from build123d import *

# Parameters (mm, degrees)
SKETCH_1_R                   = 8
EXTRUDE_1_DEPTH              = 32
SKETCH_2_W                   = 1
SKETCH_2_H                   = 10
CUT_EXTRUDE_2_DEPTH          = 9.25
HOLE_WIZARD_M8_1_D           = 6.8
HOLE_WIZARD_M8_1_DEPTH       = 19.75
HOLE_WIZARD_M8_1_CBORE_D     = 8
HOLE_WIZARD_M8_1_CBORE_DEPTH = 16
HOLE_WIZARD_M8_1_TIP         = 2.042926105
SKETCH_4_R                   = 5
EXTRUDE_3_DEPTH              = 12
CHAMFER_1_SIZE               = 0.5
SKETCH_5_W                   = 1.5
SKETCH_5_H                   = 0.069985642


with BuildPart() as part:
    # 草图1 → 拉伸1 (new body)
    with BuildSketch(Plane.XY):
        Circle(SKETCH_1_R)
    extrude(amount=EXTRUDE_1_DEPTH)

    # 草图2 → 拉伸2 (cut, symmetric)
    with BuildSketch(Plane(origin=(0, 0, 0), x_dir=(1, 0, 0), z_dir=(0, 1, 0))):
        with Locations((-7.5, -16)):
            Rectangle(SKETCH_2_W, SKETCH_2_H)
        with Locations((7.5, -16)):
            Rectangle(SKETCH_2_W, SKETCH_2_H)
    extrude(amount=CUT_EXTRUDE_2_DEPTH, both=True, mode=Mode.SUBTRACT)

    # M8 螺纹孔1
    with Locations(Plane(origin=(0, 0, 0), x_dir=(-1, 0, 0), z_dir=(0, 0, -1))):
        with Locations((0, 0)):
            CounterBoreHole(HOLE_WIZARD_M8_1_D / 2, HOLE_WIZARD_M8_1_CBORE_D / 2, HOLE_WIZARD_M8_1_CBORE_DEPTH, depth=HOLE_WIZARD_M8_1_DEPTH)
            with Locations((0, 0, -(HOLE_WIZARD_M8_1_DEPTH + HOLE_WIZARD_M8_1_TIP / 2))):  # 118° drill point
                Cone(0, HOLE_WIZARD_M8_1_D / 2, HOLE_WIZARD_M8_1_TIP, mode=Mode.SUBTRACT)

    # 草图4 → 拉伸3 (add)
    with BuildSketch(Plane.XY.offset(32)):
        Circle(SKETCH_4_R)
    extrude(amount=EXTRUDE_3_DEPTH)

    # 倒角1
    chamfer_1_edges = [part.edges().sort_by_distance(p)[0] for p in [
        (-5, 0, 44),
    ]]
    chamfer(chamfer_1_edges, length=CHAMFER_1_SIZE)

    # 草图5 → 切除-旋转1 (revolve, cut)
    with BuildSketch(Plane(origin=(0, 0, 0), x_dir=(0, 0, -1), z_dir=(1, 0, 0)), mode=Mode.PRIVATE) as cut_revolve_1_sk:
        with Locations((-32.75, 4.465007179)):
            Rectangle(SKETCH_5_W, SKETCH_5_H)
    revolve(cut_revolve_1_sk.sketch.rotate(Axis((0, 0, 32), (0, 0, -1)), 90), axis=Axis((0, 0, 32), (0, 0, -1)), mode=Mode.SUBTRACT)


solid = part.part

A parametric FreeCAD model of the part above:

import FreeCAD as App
import Part
import Sketcher

V = App.Vector
Q = App.Units.Quantity


def edges_at(feature, points):
    """Names of the edges that pass closest to the given points."""
    edges = feature.Shape.Edges
    near = lambda p: min(range(len(edges)), key=lambda i: edges[i].distToShape(Part.Vertex(*p))[0])
    return sorted({f"Edge{near(p) + 1}" for p in points})

doc = App.newDocument("Part")
body = doc.addObject("PartDesign::Body", "Body")

# Sketch on XY plane
sketch1 = body.newObject("Sketcher::SketchObject", "Sketch")
sketch1.AttachmentSupport = (doc.getObject("XY_Plane"), [""])
sketch1.MapMode = "FlatFace"
sketch1.addGeometry(Part.Circle(V(0, 0, 0), V(0, 0, 1), 8), False)
sketch1.addConstraint(Sketcher.Constraint("Coincident", 0, 3, -1, 1))
sketch1.addConstraint(Sketcher.Constraint("Diameter", 0, Q("16 mm")))
pad1 = body.newObject("PartDesign::Pad", "Pad")
pad1.Profile = sketch1
pad1.Length = 32

# Sketch on XZ plane
sketch2 = body.newObject("Sketcher::SketchObject", "Sketch001")
sketch2.AttachmentSupport = (doc.getObject("XZ_Plane"), [""])
sketch2.MapMode = "FlatFace"
sketch2.addGeometry(Part.LineSegment(V(-8, 11, 0), V(-8, 21, 0)), False)
sketch2.addGeometry(Part.LineSegment(V(-8, 21, 0), V(-7, 21, 0)), False)
sketch2.addGeometry(Part.LineSegment(V(-7, 21, 0), V(-7, 11, 0)), False)
sketch2.addGeometry(Part.LineSegment(V(-7, 11, 0), V(-8, 11, 0)), False)
sketch2.addGeometry(Part.LineSegment(V(7, 11, 0), V(7, 21, 0)), False)
sketch2.addGeometry(Part.LineSegment(V(7, 21, 0), V(8, 21, 0)), False)
sketch2.addGeometry(Part.LineSegment(V(8, 21, 0), V(8, 11, 0)), False)
sketch2.addGeometry(Part.LineSegment(V(8, 11, 0), V(7, 11, 0)), False)
sketch2.addConstraint(Sketcher.Constraint("Coincident", 0, 2, 1, 1))
sketch2.addConstraint(Sketcher.Constraint("Coincident", 1, 2, 2, 1))
sketch2.addConstraint(Sketcher.Constraint("Coincident", 2, 2, 3, 1))
sketch2.addConstraint(Sketcher.Constraint("Coincident", 3, 2, 0, 1))
sketch2.addConstraint(Sketcher.Constraint("Coincident", 4, 2, 5, 1))
sketch2.addConstraint(Sketcher.Constraint("Coincident", 5, 2, 6, 1))
sketch2.addConstraint(Sketcher.Constraint("Coincident", 6, 2, 7, 1))
sketch2.addConstraint(Sketcher.Constraint("Coincident", 7, 2, 4, 1))
sketch2.addConstraint(Sketcher.Constraint("Vertical", 0))
sketch2.addConstraint(Sketcher.Constraint("Horizontal", 1))
sketch2.addConstraint(Sketcher.Constraint("Vertical", 2))
sketch2.addConstraint(Sketcher.Constraint("Horizontal", 3))
sketch2.addConstraint(Sketcher.Constraint("Vertical", 4))
sketch2.addConstraint(Sketcher.Constraint("Horizontal", 5))
sketch2.addConstraint(Sketcher.Constraint("Vertical", 6))
sketch2.addConstraint(Sketcher.Constraint("Horizontal", 7))
sketch2.addConstraint(Sketcher.Constraint("Symmetric", 1, 2, 4, 2, -2))
sketch2.addConstraint(Sketcher.Constraint("Symmetric", 3, 2, 6, 2, -2))
sketch2.addConstraint(Sketcher.Constraint("DistanceX", 1, 1, 1, 2, Q("1 mm")))
sketch2.addConstraint(Sketcher.Constraint("DistanceY", 0, 1, 0, 2, Q("10 mm")))
sketch2.addConstraint(Sketcher.Constraint("DistanceX", 0, 2, -1, 1, Q("8 mm")))
sketch2.addConstraint(Sketcher.Constraint("DistanceY", -1, 1, 0, 2, Q("21 mm")))
pocket1 = body.newObject("PartDesign::Pocket", "Pocket")
pocket1.Profile = sketch2
pocket1.Length = 18.5
pocket1.Midplane = True

# Sketch on XY plane
sketch3 = body.newObject("Sketcher::SketchObject", "Sketch002")
sketch3.AttachmentSupport = (doc.getObject("XY_Plane"), [""])
sketch3.MapMode = "FlatFace"
sketch3.addGeometry(Part.Circle(V(0, 0, 0), V(0, 0, 1), 3.4), False)
sketch3.addConstraint(Sketcher.Constraint("Coincident", 0, 3, -1, 1))
sketch3.addConstraint(Sketcher.Constraint("Diameter", 0, Q("6.8 mm")))
doc.recompute()
hole = body.newObject("PartDesign::Hole", "Hole")
hole.Profile = sketch3
hole.ThreadType = "None"
hole.Diameter = 6.8
hole.DepthType = "Dimension"
hole.Depth = 19.75
hole.DrillPoint = "Angled"
hole.DrillPointAngle = 118
hole.HoleCutType = "Counterbore"
hole.HoleCutDiameter = 8
hole.HoleCutDepth = 16
hole.Reversed = True

# Sketch on XY plane
sketch4 = body.newObject("Sketcher::SketchObject", "Sketch003")
sketch4.AttachmentSupport = (doc.getObject("XY_Plane"), [""])
sketch4.MapMode = "FlatFace"
sketch4.AttachmentOffset = App.Placement(V(0, 0, 32), App.Rotation())
sketch4.addGeometry(Part.Circle(V(0, 0, 0), V(0, 0, 1), 5), False)
sketch4.addConstraint(Sketcher.Constraint("Coincident", 0, 3, -1, 1))
sketch4.addConstraint(Sketcher.Constraint("Diameter", 0, Q("10 mm")))
pad2 = body.newObject("PartDesign::Pad", "Pad001")
pad2.Profile = sketch4
pad2.Length = 12
doc.recompute()

chamfer = body.newObject("PartDesign::Chamfer", "Chamfer")
chamfer.Base = (pad2, edges_at(pad2, [(-5, 0, 44)]))
chamfer.Size = 0.5

# Sketch on YZ plane
sketch5 = body.newObject("Sketcher::SketchObject", "Sketch004")
sketch5.AttachmentSupport = (doc.getObject("YZ_Plane"), [""])
sketch5.MapMode = "FlatFace"
sketch5.addGeometry(Part.LineSegment(V(4.5, 33.5, 0), V(4.430014, 33.5, 0)), False)
sketch5.addGeometry(Part.LineSegment(V(4.430014, 33.5, 0), V(4.430014, 32, 0)), False)
sketch5.addGeometry(Part.LineSegment(V(4.430014, 32, 0), V(4.5, 32, 0)), False)
sketch5.addGeometry(Part.LineSegment(V(4.5, 32, 0), V(4.5, 33.5, 0)), False)
sketch5.addConstraint(Sketcher.Constraint("Coincident", 0, 2, 1, 1))
sketch5.addConstraint(Sketcher.Constraint("Coincident", 1, 2, 2, 1))
sketch5.addConstraint(Sketcher.Constraint("Coincident", 2, 2, 3, 1))
sketch5.addConstraint(Sketcher.Constraint("Coincident", 3, 2, 0, 1))
sketch5.addConstraint(Sketcher.Constraint("Horizontal", 0))
sketch5.addConstraint(Sketcher.Constraint("Vertical", 1))
sketch5.addConstraint(Sketcher.Constraint("Horizontal", 2))
sketch5.addConstraint(Sketcher.Constraint("Vertical", 3))
sketch5.addConstraint(Sketcher.Constraint("DistanceY", 1, 2, 1, 1, Q("1.5 mm")))
sketch5.addConstraint(Sketcher.Constraint("DistanceY", -1, 1, 1, 2, Q("32 mm")))
sketch5.addConstraint(Sketcher.Constraint("DistanceX", -1, 1, 2, 2, Q("4.5 mm")))
sketch5.addConstraint(Sketcher.Constraint("DistanceX", 0, 2, 0, 1, Q("0.069986 mm")))
groove = body.newObject("PartDesign::Groove", "Groove")
groove.Profile = sketch5
groove.ReferenceAxis = (sketch5, ["V_Axis"])
groove.Angle = 360

doc.recompute()
